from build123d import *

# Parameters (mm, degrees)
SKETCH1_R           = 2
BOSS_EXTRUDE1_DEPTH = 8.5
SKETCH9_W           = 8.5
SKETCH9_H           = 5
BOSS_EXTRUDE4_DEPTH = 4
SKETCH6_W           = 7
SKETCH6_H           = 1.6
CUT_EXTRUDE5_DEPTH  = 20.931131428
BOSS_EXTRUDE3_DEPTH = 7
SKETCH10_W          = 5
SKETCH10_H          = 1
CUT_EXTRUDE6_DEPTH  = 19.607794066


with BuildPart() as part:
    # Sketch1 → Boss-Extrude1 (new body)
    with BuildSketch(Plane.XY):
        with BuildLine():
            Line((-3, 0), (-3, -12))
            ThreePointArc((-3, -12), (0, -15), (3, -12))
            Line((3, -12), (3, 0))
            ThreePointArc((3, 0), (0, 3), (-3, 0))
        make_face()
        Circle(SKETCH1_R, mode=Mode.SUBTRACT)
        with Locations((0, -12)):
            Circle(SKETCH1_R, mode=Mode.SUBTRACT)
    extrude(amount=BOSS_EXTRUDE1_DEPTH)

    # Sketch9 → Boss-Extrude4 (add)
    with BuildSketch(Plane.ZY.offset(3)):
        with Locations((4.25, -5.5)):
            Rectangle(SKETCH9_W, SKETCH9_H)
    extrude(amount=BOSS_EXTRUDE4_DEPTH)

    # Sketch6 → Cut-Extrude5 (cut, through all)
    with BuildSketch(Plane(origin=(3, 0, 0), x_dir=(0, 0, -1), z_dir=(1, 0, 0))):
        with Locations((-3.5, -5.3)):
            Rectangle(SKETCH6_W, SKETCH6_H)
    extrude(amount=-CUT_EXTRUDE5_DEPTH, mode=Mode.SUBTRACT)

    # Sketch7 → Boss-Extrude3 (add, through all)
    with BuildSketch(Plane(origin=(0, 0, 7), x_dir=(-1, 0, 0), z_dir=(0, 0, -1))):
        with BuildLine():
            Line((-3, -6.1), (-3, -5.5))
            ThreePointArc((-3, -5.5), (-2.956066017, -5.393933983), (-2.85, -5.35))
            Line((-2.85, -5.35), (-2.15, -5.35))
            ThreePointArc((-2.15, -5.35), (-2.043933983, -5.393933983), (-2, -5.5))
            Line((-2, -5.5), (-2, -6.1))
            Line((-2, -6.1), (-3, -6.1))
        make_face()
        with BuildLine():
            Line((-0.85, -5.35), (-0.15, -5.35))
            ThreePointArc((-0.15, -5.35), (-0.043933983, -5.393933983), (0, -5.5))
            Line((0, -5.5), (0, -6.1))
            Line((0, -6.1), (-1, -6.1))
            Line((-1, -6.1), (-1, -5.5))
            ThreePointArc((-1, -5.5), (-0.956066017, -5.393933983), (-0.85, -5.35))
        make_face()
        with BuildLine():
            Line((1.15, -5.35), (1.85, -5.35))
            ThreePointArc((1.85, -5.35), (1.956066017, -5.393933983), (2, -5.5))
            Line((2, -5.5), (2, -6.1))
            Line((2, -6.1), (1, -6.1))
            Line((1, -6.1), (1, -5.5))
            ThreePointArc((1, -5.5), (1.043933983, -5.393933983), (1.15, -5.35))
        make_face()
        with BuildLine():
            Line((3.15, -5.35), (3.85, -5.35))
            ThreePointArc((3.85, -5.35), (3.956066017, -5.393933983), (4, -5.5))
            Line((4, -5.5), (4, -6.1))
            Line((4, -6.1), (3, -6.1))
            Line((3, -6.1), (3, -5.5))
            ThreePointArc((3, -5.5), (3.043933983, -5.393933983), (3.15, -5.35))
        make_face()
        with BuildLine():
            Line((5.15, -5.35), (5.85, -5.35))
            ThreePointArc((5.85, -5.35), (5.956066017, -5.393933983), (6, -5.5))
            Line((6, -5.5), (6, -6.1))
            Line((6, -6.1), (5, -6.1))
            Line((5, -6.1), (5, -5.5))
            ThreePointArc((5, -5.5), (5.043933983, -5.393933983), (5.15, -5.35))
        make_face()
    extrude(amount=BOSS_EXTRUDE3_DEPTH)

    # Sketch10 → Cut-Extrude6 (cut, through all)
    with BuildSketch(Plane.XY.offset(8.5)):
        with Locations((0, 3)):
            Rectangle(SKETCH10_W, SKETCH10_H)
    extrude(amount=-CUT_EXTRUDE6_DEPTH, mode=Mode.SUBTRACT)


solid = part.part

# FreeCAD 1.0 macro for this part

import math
import FreeCAD as App
import Part
import Sketcher

doc = App.newDocument("Part")
params = doc.addObject("Spreadsheet::Sheet", "Params")
for row, (alias, value) in enumerate([
    ("sketch1_diameter", "4 mm"),
    ("sketch1_radius", "3 mm"),
    ("sketch1_height", "12 mm"),
    ("pad1_length", "8.5 mm"),
    ("sketch2_width", "5 mm"),
    ("sketch2_height", "8.5 mm"),
    ("pad2_length", "4 mm"),
    ("sketch3_height", "7 mm"),
    ("sketch3_width", "1.6 mm"),
    ("sketch4_width", "1 mm"),
    ("sketch4_radius", "0.15 mm"),
    ("sketch4_height", "0.6 mm"),
    ("pad3_length", "7 mm"),
    ("sketch5_width", "5 mm"),
    ("sketch5_height", "1 mm"),
], start=1):
    params.set(f"A{row}", alias)
    params.set(f"B{row}", "=" + value)
    params.setAlias(f"B{row}", alias)

body = doc.addObject("PartDesign::Body", "Body")

sketch1 = body.newObject("Sketcher::SketchObject", "Sketch")
sketch1.AttachmentSupport = (doc.getObject("XY_Plane"), [""])
sketch1.MapMode = "FlatFace"
sketch1.addGeometry(Part.LineSegment(App.Vector(-3, 0, 0), App.Vector(-3, -12, 0)), False)
sketch1.addGeometry(Part.ArcOfCircle(Part.Circle(App.Vector(0, -12, 0), App.Vector(0, 0, 1), 3), math.radians(180), math.radians(360)), False)
sketch1.addGeometry(Part.LineSegment(App.Vector(3, -12, 0), App.Vector(3, 0, 0)), False)
sketch1.addGeometry(Part.ArcOfCircle(Part.Circle(App.Vector(0, 0, 0), App.Vector(0, 0, 1), 3), math.radians(0), math.radians(180)), False)
sketch1.addGeometry(Part.Circle(App.Vector(0, -12, 0), App.Vector(0, 0, 1), 2), False)
sketch1.addGeometry(Part.Circle(App.Vector(0, 0, 0), App.Vector(0, 0, 1), 2), False)
sketch1.addConstraint(Sketcher.Constraint("Tangent", 0, 2, 1, 1))
sketch1.addConstraint(Sketcher.Constraint("Tangent", 1, 2, 2, 1))
sketch1.addConstraint(Sketcher.Constraint("Tangent", 2, 2, 3, 1))
sketch1.addConstraint(Sketcher.Constraint("Tangent", 3, 2, 0, 1))
sketch1.addConstraint(Sketcher.Constraint("Vertical", 0))
sketch1.addConstraint(Sketcher.Constraint("Vertical", 2))
sketch1.addConstraint(Sketcher.Constraint("Coincident", 3, 3, -1, 1))
sketch1.addConstraint(Sketcher.Constraint("Coincident", 5, 3, -1, 1))
sketch1.addConstraint(Sketcher.Constraint("Coincident", 4, 3, 1, 3))
sketch1.addConstraint(Sketcher.Constraint("Equal", 4, 5))
sketch1.addConstraint(Sketcher.Constraint("Diameter", 4, 4.0))
sketch1.addConstraint(Sketcher.Constraint("Radius", 1, 3.0))
sketch1.addConstraint(Sketcher.Constraint("DistanceY", 0, 2, 0, 1, 12.0))
sketch1.setExpression("Constraints[10]", "Params.sketch1_diameter")
sketch1.setExpression("Constraints[11]", "Params.sketch1_radius")
sketch1.setExpression("Constraints[12]", "Params.sketch1_height")
pad1 = body.newObject("PartDesign::Pad", "Pad")
pad1.Profile = sketch1
pad1.setExpression("Length", "Params.pad1_length")

sketch2 = body.newObject("Sketcher::SketchObject", "Sketch001")
sketch2.AttachmentSupport = (doc.getObject("YZ_Plane"), [""])
sketch2.MapMode = "FlatFace"
sketch2.AttachmentOffset = App.Placement(App.Vector(0, 0, -3), App.Rotation())
sketch2.addGeometry(Part.LineSegment(App.Vector(-3, 0, 0), App.Vector(-8, 0, 0)), False)
sketch2.addGeometry(Part.LineSegment(App.Vector(-8, 0, 0), App.Vector(-8, 8.5, 0)), False)
sketch2.addGeometry(Part.LineSegment(App.Vector(-8, 8.5, 0), App.Vector(-3, 8.5, 0)), False)
sketch2.addGeometry(Part.LineSegment(App.Vector(-3, 8.5, 0), App.Vector(-3, 0, 0)), False)
sketch2.addConstraint(Sketcher.Constraint("Coincident", 0, 2, 1, 1))
sketch2.addConstraint(Sketcher.Constraint("Coincident", 1, 2, 2, 1))
sketch2.addConstraint(Sketcher.Constraint("Coincident", 2, 2, 3, 1))
sketch2.addConstraint(Sketcher.Constraint("Coincident", 3, 2, 0, 1))
sketch2.addConstraint(Sketcher.Constraint("Horizontal", 0))
sketch2.addConstraint(Sketcher.Constraint("Vertical", 1))
sketch2.addConstraint(Sketcher.Constraint("Horizontal", 2))
sketch2.addConstraint(Sketcher.Constraint("Vertical", 3))
sketch2.addConstraint(Sketcher.Constraint("PointOnObject", 0, 2, -1))
sketch2.addConstraint(Sketcher.Constraint("DistanceX", 0, 2, 0, 1, 5.0))
sketch2.addConstraint(Sketcher.Constraint("DistanceY", 1, 1, 1, 2, 8.5))
sketch2.addConstraint(Sketcher.Constraint("DistanceX", 0, 2, -1, 1, 8.0))
sketch2.setExpression("Constraints[9]", "Params.sketch2_width")
sketch2.setExpression("Constraints[10]", "Params.sketch2_height")
pad2 = body.newObject("PartDesign::Pad", "Pad001")
pad2.Profile = sketch2
pad2.setExpression("Length", "Params.pad2_length")
pad2.Reversed = True

sketch3 = body.newObject("Sketcher::SketchObject", "Sketch002")
sketch3.AttachmentSupport = (doc.getObject("YZ_Plane"), [""])
sketch3.MapMode = "FlatFace"
sketch3.AttachmentOffset = App.Placement(App.Vector(0, 0, 3), App.Rotation())
sketch3.addGeometry(Part.LineSegment(App.Vector(-4.5, 7, 0), App.Vector(-6.1, 7, 0)), False)
sketch3.addGeometry(Part.LineSegment(App.Vector(-6.1, 7, 0), App.Vector(-6.1, 0, 0)), False)
sketch3.addGeometry(Part.LineSegment(App.Vector(-6.1, 0, 0), App.Vector(-4.5, 0, 0)), False)
sketch3.addGeometry(Part.LineSegment(App.Vector(-4.5, 0, 0), App.Vector(-4.5, 7, 0)), False)
sketch3.addConstraint(Sketcher.Constraint("Coincident", 0, 2, 1, 1))
sketch3.addConstraint(Sketcher.Constraint("Coincident", 1, 2, 2, 1))
sketch3.addConstraint(Sketcher.Constraint("Coincident", 2, 2, 3, 1))
sketch3.addConstraint(Sketcher.Constraint("Coincident", 3, 2, 0, 1))
sketch3.addConstraint(Sketcher.Constraint("Horizontal", 0))
sketch3.addConstraint(Sketcher.Constraint("Vertical", 1))
sketch3.addConstraint(Sketcher.Constraint("Horizontal", 2))
sketch3.addConstraint(Sketcher.Constraint("Vertical", 3))
sketch3.addConstraint(Sketcher.Constraint("PointOnObject", 1, 2, -1))
sketch3.addConstraint(Sketcher.Constraint("DistanceY", 1, 2, 1, 1, 7.0))
sketch3.addConstraint(Sketcher.Constraint("DistanceX", 0, 2, 0, 1, 1.6))
sketch3.addConstraint(Sketcher.Constraint("DistanceX", 0, 2, -1, 1, 6.1))
sketch3.setExpression("Constraints[9]", "Params.sketch3_height")
sketch3.setExpression("Constraints[10]", "Params.sketch3_width")
pocket1 = body.newObject("PartDesign::Pocket", "Pocket")
pocket1.Profile = sketch3
pocket1.Type = "ThroughAll"

sketch4 = body.newObject("Sketcher::SketchObject", "Sketch003")
sketch4.AttachmentSupport = (doc.getObject("XY_Plane"), [""])
sketch4.MapMode = "FlatFace"
sketch4.AttachmentOffset = App.Placement(App.Vector(0, 0, 7), App.Rotation())
sketch4.addGeometry(Part.LineSegment(App.Vector(3, -5.5, 0), App.Vector(3, -6.1, 0)), False)
sketch4.addGeometry(Part.LineSegment(App.Vector(3, -6.1, 0), App.Vector(2, -6.1, 0)), False)
sketch4.addGeometry(Part.LineSegment(App.Vector(2, -6.1, 0), App.Vector(2, -5.5, 0)), False)
sketch4.addGeometry(Part.ArcOfCircle(Part.Circle(App.Vector(2.15, -5.5, 0), App.Vector(0, 0, 1), 0.15), math.radians(90), math.radians(180)), False)
sketch4.addGeometry(Part.LineSegment(App.Vector(2.15, -5.35, 0), App.Vector(2.85, -5.35, 0)), False)
sketch4.addGeometry(Part.ArcOfCircle(Part.Circle(App.Vector(2.85, -5.5, 0), App.Vector(0, 0, 1), 0.15), math.radians(0), math.radians(90)), False)
sketch4.addGeometry(Part.LineSegment(App.Vector(0.15, -5.35, 0), App.Vector(0.85, -5.35, 0)), False)
sketch4.addGeometry(Part.ArcOfCircle(Part.Circle(App.Vector(0.85, -5.5, 0), App.Vector(0, 0, 1), 0.15), math.radians(0), math.radians(90)), False)
sketch4.addGeometry(Part.LineSegment(App.Vector(1, -5.5, 0), App.Vector(1, -6.1, 0)), False)
sketch4.addGeometry(Part.LineSegment(App.Vector(1, -6.1, 0), App.Vector(0, -6.1, 0)), False)
sketch4.addGeometry(Part.LineSegment(App.Vector(0, -6.1, 0), App.Vector(0, -5.5, 0)), False)
sketch4.addGeometry(Part.ArcOfCircle(Part.Circle(App.Vector(0.15, -5.5, 0), App.Vector(0, 0, 1), 0.15), math.radians(90), math.radians(180)), False)
sketch4.addGeometry(Part.LineSegment(App.Vector(-1.85, -5.35, 0), App.Vector(-1.15, -5.35, 0)), False)
sketch4.addGeometry(Part.ArcOfCircle(Part.Circle(App.Vector(-1.15, -5.5, 0), App.Vector(0, 0, 1), 0.15), math.radians(0), math.radians(90)), False)
sketch4.addGeometry(Part.LineSegment(App.Vector(-1, -5.5, 0), App.Vector(-1, -6.1, 0)), False)
sketch4.addGeometry(Part.LineSegment(App.Vector(-1, -6.1, 0), App.Vector(-2, -6.1, 0)), False)
sketch4.addGeometry(Part.LineSegment(App.Vector(-2, -6.1, 0), App.Vector(-2, -5.5, 0)), False)
sketch4.addGeometry(Part.ArcOfCircle(Part.Circle(App.Vector(-1.85, -5.5, 0), App.Vector(0, 0, 1), 0.15), math.radians(90), math.radians(180)), False)
sketch4.addGeometry(Part.LineSegment(App.Vector(-3.85, -5.35, 0), App.Vector(-3.15, -5.35, 0)), False)
sketch4.addGeometry(Part.ArcOfCircle(Part.Circle(App.Vector(-3.15, -5.5, 0), App.Vector(0, 0, 1), 0.15), math.radians(0), math.radians(90)), False)
sketch4.addGeometry(Part.LineSegment(App.Vector(-3, -5.5, 0), App.Vector(-3, -6.1, 0)), False)
sketch4.addGeometry(Part.LineSegment(App.Vector(-3, -6.1, 0), App.Vector(-4, -6.1, 0)), False)
sketch4.addGeometry(Part.LineSegment(App.Vector(-4, -6.1, 0), App.Vector(-4, -5.5, 0)), False)
sketch4.addGeometry(Part.ArcOfCircle(Part.Circle(App.Vector(-3.85, -5.5, 0), App.Vector(0, 0, 1), 0.15), math.radians(90), math.radians(180)), False)
sketch4.addGeometry(Part.LineSegment(App.Vector(-5.85, -5.35, 0), App.Vector(-5.15, -5.35, 0)), False)
sketch4.addGeometry(Part.ArcOfCircle(Part.Circle(App.Vector(-5.15, -5.5, 0), App.Vector(0, 0, 1), 0.15), math.radians(0), math.radians(90)), False)
sketch4.addGeometry(Part.LineSegment(App.Vector(-5, -5.5, 0), App.Vector(-5, -6.1, 0)), False)
sketch4.addGeometry(Part.LineSegment(App.Vector(-5, -6.1, 0), App.Vector(-6, -6.1, 0)), False)
sketch4.addGeometry(Part.LineSegment(App.Vector(-6, -6.1, 0), App.Vector(-6, -5.5, 0)), False)
sketch4.addGeometry(Part.ArcOfCircle(Part.Circle(App.Vector(-5.85, -5.5, 0), App.Vector(0, 0, 1), 0.15), math.radians(90), math.radians(180)), False)
sketch4.addConstraint(Sketcher.Constraint("Coincident", 0, 2, 1, 1))
sketch4.addConstraint(Sketcher.Constraint("Coincident", 1, 2, 2, 1))
sketch4.addConstraint(Sketcher.Constraint("Tangent", 2, 2, 3, 2))
sketch4.addConstraint(Sketcher.Constraint("Tangent", 3, 1, 4, 1))
sketch4.addConstraint(Sketcher.Constraint("Tangent", 4, 2, 5, 2))
sketch4.addConstraint(Sketcher.Constraint("Tangent", 5, 1, 0, 1))
sketch4.addConstraint(Sketcher.Constraint("Tangent", 6, 2, 7, 2))
sketch4.addConstraint(Sketcher.Constraint("Tangent", 7, 1, 8, 1))
sketch4.addConstraint(Sketcher.Constraint("Coincident", 8, 2, 9, 1))
sketch4.addConstraint(Sketcher.Constraint("Coincident", 9, 2, 10, 1))
sketch4.addConstraint(Sketcher.Constraint("Tangent", 10, 2, 11, 2))
sketch4.addConstraint(Sketcher.Constraint("Tangent", 11, 1, 6, 1))
sketch4.addConstraint(Sketcher.Constraint("Tangent", 12, 2, 13, 2))
sketch4.addConstraint(Sketcher.Constraint("Tangent", 13, 1, 14, 1))
sketch4.addConstraint(Sketcher.Constraint("Coincident", 14, 2, 15, 1))
sketch4.addConstraint(Sketcher.Constraint("Coincident", 15, 2, 16, 1))
sketch4.addConstraint(Sketcher.Constraint("Tangent", 16, 2, 17, 2))
sketch4.addConstraint(Sketcher.Constraint("Tangent", 17, 1, 12, 1))
sketch4.addConstraint(Sketcher.Constraint("Tangent", 18, 2, 19, 2))
sketch4.addConstraint(Sketcher.Constraint("Tangent", 19, 1, 20, 1))
sketch4.addConstraint(Sketcher.Constraint("Coincident", 20, 2, 21, 1))
sketch4.addConstraint(Sketcher.Constraint("Coincident", 21, 2, 22, 1))
sketch4.addConstraint(Sketcher.Constraint("Tangent", 22, 2, 23, 2))
sketch4.addConstraint(Sketcher.Constraint("Tangent", 23, 1, 18, 1))
sketch4.addConstraint(Sketcher.Constraint("Tangent", 24, 2, 25, 2))
sketch4.addConstraint(Sketcher.Constraint("Tangent", 25, 1, 26, 1))
sketch4.addConstraint(Sketcher.Constraint("Coincident", 26, 2, 27, 1))
sketch4.addConstraint(Sketcher.Constraint("Coincident", 27, 2, 28, 1))
sketch4.addConstraint(Sketcher.Constraint("Tangent", 28, 2, 29, 2))
sketch4.addConstraint(Sketcher.Constraint("Tangent", 29, 1, 24, 1))
sketch4.addConstraint(Sketcher.Constraint("Vertical", 0))
sketch4.addConstraint(Sketcher.Constraint("Horizontal", 1))
sketch4.addConstraint(Sketcher.Constraint("Vertical", 2))
sketch4.addConstraint(Sketcher.Constraint("Horizontal", 4))
sketch4.addConstraint(Sketcher.Constraint("Horizontal", 6))
sketch4.addConstraint(Sketcher.Constraint("Vertical", 8))
sketch4.addConstraint(Sketcher.Constraint("Horizontal", 9))
sketch4.addConstraint(Sketcher.Constraint("Vertical", 10))
sketch4.addConstraint(Sketcher.Constraint("Horizontal", 12))
sketch4.addConstraint(Sketcher.Constraint("Vertical", 14))
sketch4.addConstraint(Sketcher.Constraint("Horizontal", 15))
sketch4.addConstraint(Sketcher.Constraint("Vertical", 16))
sketch4.addConstraint(Sketcher.Constraint("Horizontal", 18))
sketch4.addConstraint(Sketcher.Constraint("Vertical", 20))
sketch4.addConstraint(Sketcher.Constraint("Horizontal", 21))
sketch4.addConstraint(Sketcher.Constraint("Vertical", 22))
sketch4.addConstraint(Sketcher.Constraint("Horizontal", 24))
sketch4.addConstraint(Sketcher.Constraint("Vertical", 26))
sketch4.addConstraint(Sketcher.Constraint("Horizontal", 27))
sketch4.addConstraint(Sketcher.Constraint("Vertical", 28))
sketch4.addConstraint(Sketcher.Constraint("Equal", 3, 5))
sketch4.addConstraint(Sketcher.Constraint("Equal", 5, 7))
sketch4.addConstraint(Sketcher.Constraint("Equal", 7, 11))
sketch4.addConstraint(Sketcher.Constraint("Equal", 11, 13))
sketch4.addConstraint(Sketcher.Constraint("Equal", 13, 17))
sketch4.addConstraint(Sketcher.Constraint("Equal", 17, 19))
sketch4.addConstraint(Sketcher.Constraint("Equal", 19, 23))
sketch4.addConstraint(Sketcher.Constraint("Equal", 23, 25))
sketch4.addConstraint(Sketcher.Constraint("Equal", 25, 29))
sketch4.addConstraint(Sketcher.Constraint("Symmetric", 7, 1, 13, 1, -2))
sketch4.addConstraint(Sketcher.Constraint("Symmetric", 1, 2, 15, 2, -2))
sketch4.addConstraint(Sketcher.Constraint("Symmetric", 5, 1, 19, 1, -2))
sketch4.addConstraint(Sketcher.Constraint("PointOnObject", 9, 2, -2))
sketch4.addConstraint(Sketcher.Constraint("Horizontal", 5, 3, 7, 3))
sketch4.addConstraint(Sketcher.Constraint("Horizontal", 23, 3, 25, 3))
sketch4.addConstraint(Sketcher.Constraint("Horizontal", 1, 2, 8, 2))
sketch4.addConstraint(Sketcher.Constraint("Horizontal", 15, 2, 20, 2))
sketch4.addConstraint(Sketcher.Constraint("Horizontal", 21, 2, 26, 2))
sketch4.addConstraint(Sketcher.Constraint("Equal", 4, 6))
sketch4.addConstraint(Sketcher.Constraint("Equal", 6, 12))
sketch4.addConstraint(Sketcher.Constraint("Equal", 12, 18))
sketch4.addConstraint(Sketcher.Constraint("Equal", 18, 24))
sketch4.addConstraint(Sketcher.Constraint("DistanceX", 1, 2, 1, 1, 1.0))
sketch4.addConstraint(Sketcher.Constraint("Radius", 3, 0.15))
sketch4.addConstraint(Sketcher.Constraint("DistanceY", 0, 2, 0, 1, 0.6))
sketch4.addConstraint(Sketcher.Constraint("DistanceX", 25, 1, -1, 1, 5.0))
sketch4.addConstraint(Sketcher.Constraint("DistanceY", 3, 3, -1, 1, 5.5))
sketch4.setExpression("Constraints[72]", "Params.sketch4_width")
sketch4.setExpression("Constraints[73]", "Params.sketch4_radius")
sketch4.setExpression("Constraints[74]", "Params.sketch4_height")
pad3 = body.newObject("PartDesign::Pad", "Pad002")
pad3.Profile = sketch4
pad3.setExpression("Length", "Params.pad3_length")
pad3.Reversed = True

sketch5 = body.newObject("Sketcher::SketchObject", "Sketch004")
sketch5.AttachmentSupport = (doc.getObject("XY_Plane"), [""])
sketch5.MapMode = "FlatFace"
sketch5.AttachmentOffset = App.Placement(App.Vector(0, 0, 8.5), App.Rotation())
sketch5.addGeometry(Part.LineSegment(App.Vector(-2.5, 3.5, 0), App.Vector(-2.5, 2.5, 0)), False)
sketch5.addGeometry(Part.LineSegment(App.Vector(-2.5, 2.5, 0), App.Vector(2.5, 2.5, 0)), False)
sketch5.addGeometry(Part.LineSegment(App.Vector(2.5, 2.5, 0), App.Vector(2.5, 3.5, 0)), False)
sketch5.addGeometry(Part.LineSegment(App.Vector(2.5, 3.5, 0), App.Vector(-2.5, 3.5, 0)), False)
sketch5.addConstraint(Sketcher.Constraint("Coincident", 0, 2, 1, 1))
sketch5.addConstraint(Sketcher.Constraint("Coincident", 1, 2, 2, 1))
sketch5.addConstraint(Sketcher.Constraint("Coincident", 2, 2, 3, 1))
sketch5.addConstraint(Sketcher.Constraint("Coincident", 3, 2, 0, 1))
sketch5.addConstraint(Sketcher.Constraint("Vertical", 0))
sketch5.addConstraint(Sketcher.Constraint("Horizontal", 1))
sketch5.addConstraint(Sketcher.Constraint("Vertical", 2))
sketch5.addConstraint(Sketcher.Constraint("Horizontal", 3))
sketch5.addConstraint(Sketcher.Constraint("DistanceX", 1, 1, 1, 2, 5.0))
sketch5.addConstraint(Sketcher.Constraint("DistanceY", 0, 2, 0, 1, 1.0))
sketch5.addConstraint(Sketcher.Constraint("DistanceX", 0, 2, -1, 1, 2.5))
sketch5.addConstraint(Sketcher.Constraint("DistanceY", -1, 1, 0, 2, 2.5))
sketch5.setExpression("Constraints[8]", "Params.sketch5_width")
sketch5.setExpression("Constraints[9]", "Params.sketch5_height")
pocket2 = body.newObject("PartDesign::Pocket", "Pocket001")
pocket2.Profile = sketch5
pocket2.Type = "ThroughAll"

doc.recompute()
